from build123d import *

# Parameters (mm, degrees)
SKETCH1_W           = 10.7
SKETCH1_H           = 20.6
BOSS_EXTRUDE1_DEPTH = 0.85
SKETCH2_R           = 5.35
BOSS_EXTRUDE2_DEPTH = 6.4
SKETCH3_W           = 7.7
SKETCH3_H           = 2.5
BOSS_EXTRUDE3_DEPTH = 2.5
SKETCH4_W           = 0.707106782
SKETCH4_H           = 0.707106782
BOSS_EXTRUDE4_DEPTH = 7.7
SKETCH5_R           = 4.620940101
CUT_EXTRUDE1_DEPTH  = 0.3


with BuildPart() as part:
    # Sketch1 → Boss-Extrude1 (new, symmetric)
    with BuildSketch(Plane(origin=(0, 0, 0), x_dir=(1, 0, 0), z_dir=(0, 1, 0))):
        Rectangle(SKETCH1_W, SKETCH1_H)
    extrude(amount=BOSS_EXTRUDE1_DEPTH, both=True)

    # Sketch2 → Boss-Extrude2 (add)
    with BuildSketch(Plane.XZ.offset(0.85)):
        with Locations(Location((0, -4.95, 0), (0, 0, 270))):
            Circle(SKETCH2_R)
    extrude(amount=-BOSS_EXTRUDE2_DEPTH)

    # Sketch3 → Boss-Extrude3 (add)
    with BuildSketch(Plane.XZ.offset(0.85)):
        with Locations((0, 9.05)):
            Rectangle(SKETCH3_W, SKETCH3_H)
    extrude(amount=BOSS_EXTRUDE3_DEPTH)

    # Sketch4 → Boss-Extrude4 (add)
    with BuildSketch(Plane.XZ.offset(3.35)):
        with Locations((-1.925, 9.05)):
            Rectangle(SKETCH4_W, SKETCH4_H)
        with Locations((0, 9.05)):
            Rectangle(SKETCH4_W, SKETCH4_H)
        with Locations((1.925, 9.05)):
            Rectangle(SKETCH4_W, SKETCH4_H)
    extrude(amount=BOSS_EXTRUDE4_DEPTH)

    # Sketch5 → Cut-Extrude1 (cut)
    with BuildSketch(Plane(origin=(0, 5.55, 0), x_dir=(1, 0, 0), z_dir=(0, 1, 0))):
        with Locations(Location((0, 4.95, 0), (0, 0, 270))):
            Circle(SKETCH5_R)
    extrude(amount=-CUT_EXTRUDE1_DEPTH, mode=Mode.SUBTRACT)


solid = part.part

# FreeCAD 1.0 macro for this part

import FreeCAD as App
import Part
import Sketcher

V = App.Vector
Q = App.Units.Quantity

doc = App.newDocument("Part")
params = doc.addObject("Spreadsheet::Sheet", "Params")
for row, (alias, value) in enumerate([
    ("sketch1_width", "10.7 mm"),
    ("sketch1_height", "20.6 mm"),
    ("pad1_length", "1.7 mm"),
    ("sketch2_diameter", "10.7 mm"),
    ("pad2_length", "6.4 mm"),
    ("sketch3_width", "7.7 mm"),
    ("sketch3_height", "2.5 mm"),
    ("pad3_length", "2.5 mm"),
    ("pad4_length", "7.7 mm"),
    ("pocket1_length", "0.3 mm"),
], start=1):
    params.set(f"A{row}", alias)
    params.set(f"B{row}", "=" + value)
    params.setAlias(f"B{row}", alias)

body = doc.addObject("PartDesign::Body", "Body")

sketch1 = body.newObject("Sketcher::SketchObject", "Sketch")
sketch1.AttachmentSupport = (doc.getObject("XZ_Plane"), [""])
sketch1.MapMode = "FlatFace"
sketch1.addGeometry(Part.LineSegment(V(-5, -10, 0), V(-5, 10, 0)), False)
sketch1.addGeometry(Part.LineSegment(V(-5, 10, 0), V(5, 10, 0)), False)
sketch1.addGeometry(Part.LineSegment(V(5, 10, 0), V(5, -10, 0)), False)
sketch1.addGeometry(Part.LineSegment(V(5, -10, 0), V(-5, -10, 0)), False)
sketch1.addConstraint(Sketcher.Constraint("Coincident", 0, 2, 1, 1))
sketch1.addConstraint(Sketcher.Constraint("Coincident", 1, 2, 2, 1))
sketch1.addConstraint(Sketcher.Constraint("Coincident", 2, 2, 3, 1))
sketch1.addConstraint(Sketcher.Constraint("Coincident", 3, 2, 0, 1))
sketch1.addConstraint(Sketcher.Constraint("Vertical", 0))
sketch1.addConstraint(Sketcher.Constraint("Horizontal", 1))
sketch1.addConstraint(Sketcher.Constraint("Vertical", 2))
sketch1.addConstraint(Sketcher.Constraint("Horizontal", 3))
sketch1.addConstraint(Sketcher.Constraint("Symmetric", 0, 2, 2, 2, -1, 1))
sketch1.addConstraint(Sketcher.Constraint("DistanceX", 1, 1, 1, 2, Q("10.7 mm")))
sketch1.addConstraint(Sketcher.Constraint("DistanceY", 0, 1, 0, 2, Q("20.6 mm")))
sketch1.setExpression("Constraints[9]", "Params.sketch1_width")
sketch1.setExpression("Constraints[10]", "Params.sketch1_height")
pad1 = body.newObject("PartDesign::Pad", "Pad")
pad1.Profile = sketch1
pad1.setExpression("Length", "Params.pad1_length")
pad1.Midplane = True

sketch2 = body.newObject("Sketcher::SketchObject", "Sketch001")
sketch2.AttachmentSupport = (doc.getObject("XZ_Plane"), [""])
sketch2.MapMode = "FlatFace"
sketch2.AttachmentOffset = App.Placement(V(0, 0, 0.85), App.Rotation())
sketch2.addGeometry(Part.Circle(V(0, -5, 0), V(0, 0, 1), 5), False)
sketch2.addConstraint(Sketcher.Constraint("PointOnObject", 0, 3, -2))
sketch2.addConstraint(Sketcher.Constraint("Diameter", 0, Q("10.7 mm")))
sketch2.addConstraint(Sketcher.Constraint("DistanceY", 0, 3, -1, 1, Q("4.95 mm")))
sketch2.setExpression("Constraints[1]", "Params.sketch2_diameter")
pad2 = body.newObject("PartDesign::Pad", "Pad001")
pad2.Profile = sketch2
pad2.setExpression("Length", "Params.pad2_length")
pad2.Reversed = True

sketch3 = body.newObject("Sketcher::SketchObject", "Sketch002")
sketch3.AttachmentSupport = (doc.getObject("XZ_Plane"), [""])
sketch3.MapMode = "FlatFace"
sketch3.AttachmentOffset = App.Placement(V(0, 0, 0.85), App.Rotation())
sketch3.addGeometry(Part.LineSegment(V(-3.9, 10.3, 0), V(-3.9, 7.8, 0)), False)
sketch3.addGeometry(Part.LineSegment(V(-3.9, 7.8, 0), V(3.9, 7.8, 0)), False)
sketch3.addGeometry(Part.LineSegment(V(3.9, 7.8, 0), V(3.9, 10.3, 0)), False)
sketch3.addGeometry(Part.LineSegment(V(3.9, 10.3, 0), V(-3.9, 10.3, 0)), False)
sketch3.addConstraint(Sketcher.Constraint("Coincident", 0, 2, 1, 1))
sketch3.addConstraint(Sketcher.Constraint("Coincident", 1, 2, 2, 1))
sketch3.addConstraint(Sketcher.Constraint("Coincident", 2, 2, 3, 1))
sketch3.addConstraint(Sketcher.Constraint("Coincident", 3, 2, 0, 1))
sketch3.addConstraint(Sketcher.Constraint("Vertical", 0))
sketch3.addConstraint(Sketcher.Constraint("Horizontal", 1))
sketch3.addConstraint(Sketcher.Constraint("Vertical", 2))
sketch3.addConstraint(Sketcher.Constraint("Horizontal", 3))
sketch3.addConstraint(Sketcher.Constraint("DistanceX", 1, 1, 1, 2, Q("7.7 mm")))
sketch3.addConstraint(Sketcher.Constraint("DistanceY", 0, 2, 0, 1, Q("2.5 mm")))
sketch3.addConstraint(Sketcher.Constraint("DistanceY", -1, 1, 0, 2, Q("7.8 mm")))
sketch3.addConstraint(Sketcher.Constraint("DistanceX", 0, 2, -1, 1, Q("3.85 mm")))
sketch3.setExpression("Constraints[8]", "Params.sketch3_width")
sketch3.setExpression("Constraints[9]", "Params.sketch3_height")
pad3 = body.newObject("PartDesign::Pad", "Pad002")
pad3.Profile = sketch3
pad3.setExpression("Length", "Params.pad3_length")

sketch4 = body.newObject("Sketcher::SketchObject", "Sketch003")
sketch4.AttachmentSupport = (doc.getObject("XZ_Plane"), [""])
sketch4.MapMode = "FlatFace"
sketch4.AttachmentOffset = App.Placement(V(0, 0, 3.35), App.Rotation())
sketch4.addGeometry(Part.LineSegment(V(-2.3, 9.4, 0), V(-2.3, 8.7, 0)), False)
sketch4.addGeometry(Part.LineSegment(V(-2.3, 8.7, 0), V(-1.6, 8.7, 0)), False)
sketch4.addGeometry(Part.LineSegment(V(-1.6, 8.7, 0), V(-1.6, 9.4, 0)), False)
sketch4.addGeometry(Part.LineSegment(V(-1.6, 9.4, 0), V(-2.3, 9.4, 0)), False)
sketch4.addGeometry(Part.LineSegment(V(-0.4, 9.4, 0), V(-0.4, 8.7, 0)), False)
sketch4.addGeometry(Part.LineSegment(V(-0.4, 8.7, 0), V(0.4, 8.7, 0)), False)
sketch4.addGeometry(Part.LineSegment(V(0.4, 8.7, 0), V(0.4, 9.4, 0)), False)
sketch4.addGeometry(Part.LineSegment(V(0.4, 9.4, 0), V(-0.4, 9.4, 0)), False)
sketch4.addGeometry(Part.LineSegment(V(1.6, 9.4, 0), V(1.6, 8.7, 0)), False)
sketch4.addGeometry(Part.LineSegment(V(1.6, 8.7, 0), V(2.3, 8.7, 0)), False)
sketch4.addGeometry(Part.LineSegment(V(2.3, 8.7, 0), V(2.3, 9.4, 0)), False)
sketch4.addGeometry(Part.LineSegment(V(2.3, 9.4, 0), V(1.6, 9.4, 0)), False)
sketch4.addConstraint(Sketcher.Constraint("Coincident", 0, 2, 1, 1))
sketch4.addConstraint(Sketcher.Constraint("Coincident", 1, 2, 2, 1))
sketch4.addConstraint(Sketcher.Constraint("Coincident", 2, 2, 3, 1))
sketch4.addConstraint(Sketcher.Constraint("Coincident", 3, 2, 0, 1))
sketch4.addConstraint(Sketcher.Constraint("Coincident", 4, 2, 5, 1))
sketch4.addConstraint(Sketcher.Constraint("Coincident", 5, 2, 6, 1))
sketch4.addConstraint(Sketcher.Constraint("Coincident", 6, 2, 7, 1))
sketch4.addConstraint(Sketcher.Constraint("Coincident", 7, 2, 4, 1))
sketch4.addConstraint(Sketcher.Constraint("Coincident", 8, 2, 9, 1))
sketch4.addConstraint(Sketcher.Constraint("Coincident", 9, 2, 10, 1))
sketch4.addConstraint(Sketcher.Constraint("Coincident", 10, 2, 11, 1))
sketch4.addConstraint(Sketcher.Constraint("Coincident", 11, 2, 8, 1))
sketch4.addConstraint(Sketcher.Constraint("Vertical", 0))
sketch4.addConstraint(Sketcher.Constraint("Horizontal", 1))
sketch4.addConstraint(Sketcher.Constraint("Vertical", 2))
sketch4.addConstraint(Sketcher.Constraint("Horizontal", 3))
sketch4.addConstraint(Sketcher.Constraint("Vertical", 4))
sketch4.addConstraint(Sketcher.Constraint("Horizontal", 5))
sketch4.addConstraint(Sketcher.Constraint("Vertical", 6))
sketch4.addConstraint(Sketcher.Constraint("Horizontal", 7))
sketch4.addConstraint(Sketcher.Constraint("Vertical", 8))
sketch4.addConstraint(Sketcher.Constraint("Horizontal", 9))
sketch4.addConstraint(Sketcher.Constraint("Vertical", 10))
sketch4.addConstraint(Sketcher.Constraint("Horizontal", 11))
sketch4.addConstraint(Sketcher.Constraint("Symmetric", 1, 2, 8, 2, -2))
sketch4.addConstraint(Sketcher.Constraint("Symmetric", 3, 2, 10, 2, -2))
sketch4.addConstraint(Sketcher.Constraint("Horizontal", 1, 2, 4, 2))
sketch4.addConstraint(Sketcher.Constraint("Horizontal", 3, 2, 6, 2))
sketch4.addConstraint(Sketcher.Constraint("Equal", 3, 5))
sketch4.addConstraint(Sketcher.Constraint("Equal", 11, 0))
sketch4.addConstraint(Sketcher.Constraint("DistanceX", 0, 2, 4, 2, Q("1.925 mm")))
sketch4.addConstraint(Sketcher.Constraint("DistanceX", 4, 2, 8, 2, Q("1.925 mm")))
sketch4.addConstraint(Sketcher.Constraint("DistanceX", 1, 1, 1, 2, Q("0.707107 mm")))
sketch4.addConstraint(Sketcher.Constraint("DistanceY", -1, 1, 0, 2, Q("8.696447 mm")))
pad4 = body.newObject("PartDesign::Pad", "Pad003")
pad4.Profile = sketch4
pad4.setExpression("Length", "Params.pad4_length")

sketch5 = body.newObject("Sketcher::SketchObject", "Sketch004")
sketch5.AttachmentSupport = (doc.getObject("XZ_Plane"), [""])
sketch5.MapMode = "FlatFace"
sketch5.AttachmentOffset = App.Placement(V(0, 0, -5.55), App.Rotation())
sketch5.addGeometry(Part.Circle(V(0, -5, 0), V(0, 0, 1), 4.6), False)
sketch5.addConstraint(Sketcher.Constraint("PointOnObject", 0, 3, -2))
sketch5.addConstraint(Sketcher.Constraint("Diameter", 0, Q("9.24188 mm")))
sketch5.addConstraint(Sketcher.Constraint("DistanceY", 0, 3, -1, 1, Q("4.95 mm")))
pocket1 = body.newObject("PartDesign::Pocket", "Pocket")
pocket1.Profile = sketch5
pocket1.setExpression("Length", "Params.pocket1_length")
pocket1.Reversed = True

doc.recompute()
